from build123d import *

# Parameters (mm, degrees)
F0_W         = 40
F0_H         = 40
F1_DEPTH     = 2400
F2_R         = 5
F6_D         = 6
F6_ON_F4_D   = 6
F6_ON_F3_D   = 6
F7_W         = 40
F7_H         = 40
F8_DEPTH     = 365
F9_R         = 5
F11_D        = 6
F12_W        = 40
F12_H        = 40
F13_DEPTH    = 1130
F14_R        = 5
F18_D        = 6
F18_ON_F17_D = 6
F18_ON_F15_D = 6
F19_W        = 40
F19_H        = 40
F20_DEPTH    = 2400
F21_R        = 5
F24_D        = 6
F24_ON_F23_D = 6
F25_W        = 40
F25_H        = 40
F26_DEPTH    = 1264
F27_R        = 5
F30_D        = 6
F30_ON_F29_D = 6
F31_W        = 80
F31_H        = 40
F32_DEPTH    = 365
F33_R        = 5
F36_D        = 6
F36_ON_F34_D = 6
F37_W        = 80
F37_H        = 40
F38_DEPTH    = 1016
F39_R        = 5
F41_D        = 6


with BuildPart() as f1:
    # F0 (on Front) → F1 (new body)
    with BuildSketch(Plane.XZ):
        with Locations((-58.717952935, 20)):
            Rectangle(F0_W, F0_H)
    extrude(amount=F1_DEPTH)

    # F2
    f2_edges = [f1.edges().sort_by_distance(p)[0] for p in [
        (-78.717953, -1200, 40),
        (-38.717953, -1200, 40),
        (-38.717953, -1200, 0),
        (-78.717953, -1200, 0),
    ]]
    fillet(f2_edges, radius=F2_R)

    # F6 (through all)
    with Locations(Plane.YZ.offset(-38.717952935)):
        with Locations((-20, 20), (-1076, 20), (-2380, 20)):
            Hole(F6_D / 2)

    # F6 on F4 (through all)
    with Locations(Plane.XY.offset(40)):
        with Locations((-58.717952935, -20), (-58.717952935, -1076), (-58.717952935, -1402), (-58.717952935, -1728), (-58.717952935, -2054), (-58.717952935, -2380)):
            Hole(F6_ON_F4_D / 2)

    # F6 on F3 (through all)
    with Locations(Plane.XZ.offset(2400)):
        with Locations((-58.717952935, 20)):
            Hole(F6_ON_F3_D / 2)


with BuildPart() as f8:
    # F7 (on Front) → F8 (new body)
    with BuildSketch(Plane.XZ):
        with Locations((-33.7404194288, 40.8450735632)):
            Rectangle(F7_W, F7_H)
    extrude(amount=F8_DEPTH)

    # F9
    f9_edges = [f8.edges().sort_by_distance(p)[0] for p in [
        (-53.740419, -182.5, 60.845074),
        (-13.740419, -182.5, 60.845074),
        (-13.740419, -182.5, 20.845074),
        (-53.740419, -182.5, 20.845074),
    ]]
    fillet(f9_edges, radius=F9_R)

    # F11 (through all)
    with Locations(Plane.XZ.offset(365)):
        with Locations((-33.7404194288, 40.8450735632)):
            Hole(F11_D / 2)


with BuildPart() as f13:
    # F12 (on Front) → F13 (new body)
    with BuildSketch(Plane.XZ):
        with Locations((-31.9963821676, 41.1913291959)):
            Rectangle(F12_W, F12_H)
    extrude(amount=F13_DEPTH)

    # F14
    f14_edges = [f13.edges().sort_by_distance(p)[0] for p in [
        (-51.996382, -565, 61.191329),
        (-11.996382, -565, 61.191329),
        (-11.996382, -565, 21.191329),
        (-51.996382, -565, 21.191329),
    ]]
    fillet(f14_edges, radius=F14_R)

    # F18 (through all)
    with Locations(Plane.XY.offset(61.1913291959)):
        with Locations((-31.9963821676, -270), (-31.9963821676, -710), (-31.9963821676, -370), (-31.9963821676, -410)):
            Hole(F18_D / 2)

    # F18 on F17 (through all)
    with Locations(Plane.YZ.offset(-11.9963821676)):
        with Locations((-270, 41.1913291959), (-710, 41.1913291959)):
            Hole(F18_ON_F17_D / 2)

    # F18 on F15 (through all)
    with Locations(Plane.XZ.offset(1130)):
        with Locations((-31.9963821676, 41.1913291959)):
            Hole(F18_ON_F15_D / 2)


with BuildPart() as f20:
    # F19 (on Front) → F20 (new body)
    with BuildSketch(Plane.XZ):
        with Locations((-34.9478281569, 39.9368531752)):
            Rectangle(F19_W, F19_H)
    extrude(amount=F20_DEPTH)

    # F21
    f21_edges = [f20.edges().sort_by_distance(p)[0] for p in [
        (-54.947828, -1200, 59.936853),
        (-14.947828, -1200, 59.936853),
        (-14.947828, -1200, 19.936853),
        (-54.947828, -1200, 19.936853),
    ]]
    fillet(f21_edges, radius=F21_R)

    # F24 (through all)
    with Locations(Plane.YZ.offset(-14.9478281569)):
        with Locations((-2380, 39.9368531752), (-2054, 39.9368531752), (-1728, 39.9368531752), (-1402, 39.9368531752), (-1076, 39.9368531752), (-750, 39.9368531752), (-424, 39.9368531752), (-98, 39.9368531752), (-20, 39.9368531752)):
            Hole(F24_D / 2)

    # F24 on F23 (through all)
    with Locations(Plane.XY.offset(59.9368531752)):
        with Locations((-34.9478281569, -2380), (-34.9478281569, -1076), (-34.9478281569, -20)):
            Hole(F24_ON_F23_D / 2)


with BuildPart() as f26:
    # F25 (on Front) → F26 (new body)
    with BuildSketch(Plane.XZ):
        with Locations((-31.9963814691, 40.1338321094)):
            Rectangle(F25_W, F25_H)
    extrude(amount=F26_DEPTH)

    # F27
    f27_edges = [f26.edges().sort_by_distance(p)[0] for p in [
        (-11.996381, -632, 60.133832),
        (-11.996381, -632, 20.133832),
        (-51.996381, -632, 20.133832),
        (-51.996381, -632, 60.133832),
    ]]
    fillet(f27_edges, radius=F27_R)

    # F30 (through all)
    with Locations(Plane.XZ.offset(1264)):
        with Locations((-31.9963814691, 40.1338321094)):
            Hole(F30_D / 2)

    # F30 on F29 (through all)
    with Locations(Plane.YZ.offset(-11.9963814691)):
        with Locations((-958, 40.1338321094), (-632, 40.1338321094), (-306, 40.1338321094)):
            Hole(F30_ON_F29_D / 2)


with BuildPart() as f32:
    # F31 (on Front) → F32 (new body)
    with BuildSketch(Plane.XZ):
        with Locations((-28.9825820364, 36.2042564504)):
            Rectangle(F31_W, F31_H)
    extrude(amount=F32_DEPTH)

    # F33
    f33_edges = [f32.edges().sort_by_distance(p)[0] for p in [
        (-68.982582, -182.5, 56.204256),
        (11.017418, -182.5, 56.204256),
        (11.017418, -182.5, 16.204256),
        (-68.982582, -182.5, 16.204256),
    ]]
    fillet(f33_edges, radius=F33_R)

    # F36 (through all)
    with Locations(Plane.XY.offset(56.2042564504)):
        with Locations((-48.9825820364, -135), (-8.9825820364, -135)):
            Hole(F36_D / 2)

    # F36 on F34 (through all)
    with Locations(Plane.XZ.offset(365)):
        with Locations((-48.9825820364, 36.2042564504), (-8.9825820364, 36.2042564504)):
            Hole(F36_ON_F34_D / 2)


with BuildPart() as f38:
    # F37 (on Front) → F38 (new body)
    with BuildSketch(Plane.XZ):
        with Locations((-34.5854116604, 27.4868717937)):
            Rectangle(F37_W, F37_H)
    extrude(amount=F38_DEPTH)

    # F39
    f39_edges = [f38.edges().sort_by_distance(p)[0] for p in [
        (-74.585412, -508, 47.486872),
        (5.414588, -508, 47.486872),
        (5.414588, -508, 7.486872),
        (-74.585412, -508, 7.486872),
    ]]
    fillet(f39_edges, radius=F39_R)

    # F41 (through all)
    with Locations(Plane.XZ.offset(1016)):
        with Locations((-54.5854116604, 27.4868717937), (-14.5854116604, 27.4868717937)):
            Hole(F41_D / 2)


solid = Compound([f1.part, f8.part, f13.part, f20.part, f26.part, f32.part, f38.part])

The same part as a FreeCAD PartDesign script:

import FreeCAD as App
import Part
import Sketcher
from FreeCAD import Vector
Q = App.Units.Quantity


def edges_at(feature, points):
    """Names of the edges that pass closest to the given points."""
    edges = feature.Shape.Edges
    near = lambda p: min(range(len(edges)), key=lambda i: edges[i].distToShape(Part.Vertex(*p))[0])
    return sorted({f"Edge{near(p) + 1}" for p in points})

doc = App.newDocument("Part")
body = doc.addObject("PartDesign::Body", "Body")

# Sketch on XZ plane
sketch1 = doc.addObject("Sketcher::SketchObject", "Sketch")
body.addObject(sketch1)
sketch1.AttachmentSupport = (doc.XZ_Plane, [""])
sketch1.MapMode = "FlatFace"
sketch1.addGeometry([
    Part.LineSegment(Vector(-79, 40, 0), Vector(-79, 0, 0)),
    Part.LineSegment(Vector(-79, 0, 0), Vector(-39, 0, 0)),
    Part.LineSegment(Vector(-39, 0, 0), Vector(-39, 40, 0)),
    Part.LineSegment(Vector(-39, 40, 0), Vector(-79, 40, 0)),
], False)
sketch1.addConstraint([
    Sketcher.Constraint("Coincident", 0, 2, 1, 1),
    Sketcher.Constraint("Coincident", 1, 2, 2, 1),
    Sketcher.Constraint("Coincident", 2, 2, 3, 1),
    Sketcher.Constraint("Coincident", 3, 2, 0, 1),
    Sketcher.Constraint("Vertical", 0),
    Sketcher.Constraint("Horizontal", 1),
    Sketcher.Constraint("Vertical", 2),
    Sketcher.Constraint("Horizontal", 3),
    Sketcher.Constraint("PointOnObject", 0, 2, -1),
    Sketcher.Constraint("Equal", 3, 0),
    Sketcher.Constraint("DistanceX", 1, 1, 1, 2, Q("40 mm")),
    Sketcher.Constraint("DistanceX", 0, 2, -1, 1, Q("78.717953 mm")),
])
pad1 = doc.addObject("PartDesign::Pad", "Pad")
body.addObject(pad1)
pad1.Profile = sketch1
pad1.Length = 2400
doc.recompute()

fillet = doc.addObject("PartDesign::Fillet", "Fillet")
body.addObject(fillet)
fillet.Base = (pad1, edges_at(pad1, [
    (-78.718, -1200, 40),
    (-38.718, -1200, 40),
    (-38.718, -1200, 0),
    (-78.718, -1200, 0),
]))
fillet.Radius = 5

# Sketch on YZ plane
sketch2 = doc.addObject("Sketcher::SketchObject", "Sketch001")
body.addObject(sketch2)
sketch2.AttachmentSupport = (doc.YZ_Plane, [""])
sketch2.MapMode = "FlatFace"
sketch2.AttachmentOffset = App.Placement(Vector(0, 0, -38.717953), App.Rotation())
sketch2.addGeometry([
    Part.Circle(Vector(-20, 20, 0), Vector(0, 0, 1), 3),
    Part.Circle(Vector(-1076, 20, 0), Vector(0, 0, 1), 3),
    Part.Circle(Vector(-2380, 20, 0), Vector(0, 0, 1), 3),
], False)
sketch2.addConstraint([
    Sketcher.Constraint("Equal", 0, 1),
    Sketcher.Constraint("Equal", 1, 2),
    Sketcher.Constraint("Horizontal", 0, 3, 1, 3),
    Sketcher.Constraint("Horizontal", 1, 3, 2, 3),
    Sketcher.Constraint("Diameter", 0, Q("6 mm")),
    Sketcher.Constraint("DistanceX", 0, 3, -1, 1, Q("20 mm")),
    Sketcher.Constraint("DistanceY", -1, 1, 0, 3, Q("20 mm")),
    Sketcher.Constraint("DistanceX", 1, 3, -1, 1, Q("1076 mm")),
    Sketcher.Constraint("DistanceX", 2, 3, -1, 1, Q("2380 mm")),
])
doc.recompute()
hole = doc.addObject("PartDesign::Hole", "Hole")
body.addObject(hole)
hole.Profile = sketch2
hole.ThreadType = "None"
hole.Diameter = 6
hole.DepthType = "ThroughAll"

# Sketch on XY plane
sketch3 = doc.addObject("Sketcher::SketchObject", "Sketch002")
body.addObject(sketch3)
sketch3.AttachmentSupport = (doc.XY_Plane, [""])
sketch3.MapMode = "FlatFace"
sketch3.AttachmentOffset = App.Placement(Vector(0, 0, 40), App.Rotation())
sketch3.addGeometry([
    Part.Circle(Vector(-58.7, -20, 0), Vector(0, 0, 1), 3),  # 0
    Part.Circle(Vector(-58.7, -1076, 0), Vector(0, 0, 1), 3),  # 1
    Part.Circle(Vector(-58.7, -1402, 0), Vector(0, 0, 1), 3),  # 2
    Part.Circle(Vector(-58.7, -1728, 0), Vector(0, 0, 1), 3),  # 3
    Part.Circle(Vector(-58.7, -2054, 0), Vector(0, 0, 1), 3),  # 4
    Part.Circle(Vector(-58.7, -2380, 0), Vector(0, 0, 1), 3),  # 5
], False)
sketch3.addConstraint([
    Sketcher.Constraint("Equal", 0, 1),
    Sketcher.Constraint("Equal", 1, 2),
    Sketcher.Constraint("Equal", 2, 3),
    Sketcher.Constraint("Equal", 3, 4),
    Sketcher.Constraint("Equal", 4, 5),
    Sketcher.Constraint("Vertical", 0, 3, 1, 3),
    Sketcher.Constraint("Vertical", 1, 3, 2, 3),
    Sketcher.Constraint("Vertical", 2, 3, 3, 3),
    Sketcher.Constraint("Vertical", 3, 3, 4, 3),
    Sketcher.Constraint("Vertical", 4, 3, 5, 3),
    Sketcher.Constraint("Diameter", 0, Q("6 mm")),
    Sketcher.Constraint("DistanceY", 0, 3, -1, 1, Q("20 mm")),
    Sketcher.Constraint("DistanceY", 1, 3, -1, 1, Q("1076 mm")),
    Sketcher.Constraint("DistanceY", 2, 3, -1, 1, Q("1402 mm")),
    Sketcher.Constraint("DistanceY", 3, 3, -1, 1, Q("1728 mm")),
    Sketcher.Constraint("DistanceY", 4, 3, -1, 1, Q("2054 mm")),
    Sketcher.Constraint("DistanceY", 5, 3, -1, 1, Q("2380 mm")),
    Sketcher.Constraint("DistanceX", 0, 3, -1, 1, Q("58.717953 mm")),
])
doc.recompute()
hole2 = doc.addObject("PartDesign::Hole", "Hole001")
body.addObject(hole2)
hole2.Profile = sketch3
hole2.ThreadType = "None"
hole2.Diameter = 6
hole2.DepthType = "ThroughAll"

# Sketch on XZ plane
sketch4 = doc.addObject("Sketcher::SketchObject", "Sketch003")
body.addObject(sketch4)
sketch4.AttachmentSupport = (doc.XZ_Plane, [""])
sketch4.MapMode = "FlatFace"
sketch4.AttachmentOffset = App.Placement(Vector(0, 0, 2400), App.Rotation())
sketch4.addGeometry(Part.Circle(Vector(-58.7, 20, 0), Vector(0, 0, 1), 3), False)
sketch4.addConstraint([
    Sketcher.Constraint("Diameter", 0, Q("6 mm")),
    Sketcher.Constraint("DistanceY", -1, 1, 0, 3, Q("20 mm")),
    Sketcher.Constraint("DistanceX", 0, 3, -1, 1, Q("58.717953 mm")),
])
doc.recompute()
hole3 = doc.addObject("PartDesign::Hole", "Hole002")
body.addObject(hole3)
hole3.Profile = sketch4
hole3.ThreadType = "None"
hole3.Diameter = 6
hole3.DepthType = "ThroughAll"
body2 = doc.addObject("PartDesign::Body", "Body001")

# Sketch on XZ plane
sketch5 = doc.addObject("Sketcher::SketchObject", "Sketch004")
body2.addObject(sketch5)
sketch5.AttachmentSupport = (doc.getObject("XZ_Plane001"), [""])
sketch5.MapMode = "FlatFace"
sketch5.addGeometry([
    Part.LineSegment(Vector(-54, 61, 0), Vector(-54, 21, 0)),
    Part.LineSegment(Vector(-54, 21, 0), Vector(-14, 21, 0)),
    Part.LineSegment(Vector(-14, 21, 0), Vector(-14, 61, 0)),
    Part.LineSegment(Vector(-14, 61, 0), Vector(-54, 61, 0)),
], False)
sketch5.addConstraint([
    Sketcher.Constraint("Coincident", 0, 2, 1, 1),
    Sketcher.Constraint("Coincident", 1, 2, 2, 1),
    Sketcher.Constraint("Coincident", 2, 2, 3, 1),
    Sketcher.Constraint("Coincident", 3, 2, 0, 1),
    Sketcher.Constraint("Vertical", 0),
    Sketcher.Constraint("Horizontal", 1),
    Sketcher.Constraint("Vertical", 2),
    Sketcher.Constraint("Horizontal", 3),
    Sketcher.Constraint("Equal", 3, 0),
    Sketcher.Constraint("DistanceX", 1, 1, 1, 2, Q("40 mm")),
    Sketcher.Constraint("DistanceX", 0, 2, -1, 1, Q("53.740419 mm")),
    Sketcher.Constraint("DistanceY", -1, 1, 0, 2, Q("20.845074 mm")),
])
pad2 = doc.addObject("PartDesign::Pad", "Pad001")
body2.addObject(pad2)
pad2.Profile = sketch5
pad2.Length = 365
doc.recompute()

fillet2 = doc.addObject("PartDesign::Fillet", "Fillet001")
body2.addObject(fillet2)
fillet2.Base = (pad2, edges_at(pad2, [
    (-53.74, -182.5, 60.845),
    (-13.74, -182.5, 60.845),
    (-13.74, -182.5, 20.845),
    (-53.74, -182.5, 20.845),
]))
fillet2.Radius = 5

# Sketch on XZ plane
sketch6 = doc.addObject("Sketcher::SketchObject", "Sketch005")
body2.addObject(sketch6)
sketch6.AttachmentSupport = (doc.getObject("XZ_Plane001"), [""])
sketch6.MapMode = "FlatFace"
sketch6.AttachmentOffset = App.Placement(Vector(0, 0, 365), App.Rotation())
sketch6.addGeometry(Part.Circle(Vector(-33.7, 40.8, 0), Vector(0, 0, 1), 3), False)
sketch6.addConstraint([
    Sketcher.Constraint("Diameter", 0, Q("6 mm")),
    Sketcher.Constraint("DistanceX", 0, 3, -1, 1, Q("33.740419 mm")),
    Sketcher.Constraint("DistanceY", -1, 1, 0, 3, Q("40.845074 mm")),
])
doc.recompute()
hole4 = doc.addObject("PartDesign::Hole", "Hole003")
body2.addObject(hole4)
hole4.Profile = sketch6
hole4.ThreadType = "None"
hole4.Diameter = 6
hole4.DepthType = "ThroughAll"
body3 = doc.addObject("PartDesign::Body", "Body002")

# Sketch on XZ plane
sketch7 = doc.addObject("Sketcher::SketchObject", "Sketch006")
body3.addObject(sketch7)
sketch7.AttachmentSupport = (doc.getObject("XZ_Plane002"), [""])
sketch7.MapMode = "FlatFace"
sketch7.addGeometry([
    Part.LineSegment(Vector(-52, 61, 0), Vector(-52, 21, 0)),
    Part.LineSegment(Vector(-52, 21, 0), Vector(-12, 21, 0)),
    Part.LineSegment(Vector(-12, 21, 0), Vector(-12, 61, 0)),
    Part.LineSegment(Vector(-12, 61, 0), Vector(-52, 61, 0)),
], False)
sketch7.addConstraint([
    Sketcher.Constraint("Coincident", 0, 2, 1, 1),
    Sketcher.Constraint("Coincident", 1, 2, 2, 1),
    Sketcher.Constraint("Coincident", 2, 2, 3, 1),
    Sketcher.Constraint("Coincident", 3, 2, 0, 1),
    Sketcher.Constraint("Vertical", 0),
    Sketcher.Constraint("Horizontal", 1),
    Sketcher.Constraint("Vertical", 2),
    Sketcher.Constraint("Horizontal", 3),
    Sketcher.Constraint("Equal", 3, 0),
    Sketcher.Constraint("DistanceX", 1, 1, 1, 2, Q("40 mm")),
    Sketcher.Constraint("DistanceY", -1, 1, 0, 2, Q("21.191329 mm")),
    Sketcher.Constraint("DistanceX", 0, 2, -1, 1, Q("51.996382 mm")),
])
pad3 = doc.addObject("PartDesign::Pad", "Pad002")
body3.addObject(pad3)
pad3.Profile = sketch7
pad3.Length = 1130
doc.recompute()

fillet3 = doc.addObject("PartDesign::Fillet", "Fillet002")
body3.addObject(fillet3)
fillet3.Base = (pad3, edges_at(pad3, [
    (-51.996, -565, 61.191),
    (-11.996, -565, 61.191),
    (-11.996, -565, 21.191),
    (-51.996, -565, 21.191),
]))
fillet3.Radius = 5

# Sketch on XY plane
sketch8 = doc.addObject("Sketcher::SketchObject", "Sketch007")
body3.addObject(sketch8)
sketch8.AttachmentSupport = (doc.getObject("XY_Plane002"), [""])
sketch8.MapMode = "FlatFace"
sketch8.AttachmentOffset = App.Placement(Vector(0, 0, 61.191329), App.Rotation())
sketch8.addGeometry([
    Part.Circle(Vector(-32, -270, 0), Vector(0, 0, 1), 3),
    Part.Circle(Vector(-32, -710, 0), Vector(0, 0, 1), 3),
    Part.Circle(Vector(-32, -370, 0), Vector(0, 0, 1), 3),
    Part.Circle(Vector(-32, -410, 0), Vector(0, 0, 1), 3),
], False)
sketch8.addConstraint([
    Sketcher.Constraint("Equal", 0, 1),
    Sketcher.Constraint("Equal", 1, 2),
    Sketcher.Constraint("Equal", 2, 3),
    Sketcher.Constraint("Vertical", 0, 3, 1, 3),
    Sketcher.Constraint("Vertical", 1, 3, 2, 3),
    Sketcher.Constraint("Vertical", 2, 3, 3, 3),
    Sketcher.Constraint("Diameter", 0, Q("6 mm")),
    Sketcher.Constraint("DistanceY", 0, 3, -1, 1, Q("270 mm")),
    Sketcher.Constraint("DistanceY", 1, 3, -1, 1, Q("710 mm")),
    Sketcher.Constraint("DistanceY", 2, 3, -1, 1, Q("370 mm")),
    Sketcher.Constraint("DistanceY", 3, 3, -1, 1, Q("410 mm")),
    Sketcher.Constraint("DistanceX", 0, 3, -1, 1, Q("31.996382 mm")),
])
doc.recompute()
hole5 = doc.addObject("PartDesign::Hole", "Hole004")
body3.addObject(hole5)
hole5.Profile = sketch8
hole5.ThreadType = "None"
hole5.Diameter = 6
hole5.DepthType = "ThroughAll"

# Sketch on YZ plane
sketch9 = doc.addObject("Sketcher::SketchObject", "Sketch008")
body3.addObject(sketch9)
sketch9.AttachmentSupport = (doc.getObject("YZ_Plane002"), [""])
sketch9.MapMode = "FlatFace"
sketch9.AttachmentOffset = App.Placement(Vector(0, 0, -11.996382), App.Rotation())
sketch9.addGeometry([
    Part.Circle(Vector(-270, 41.2, 0), Vector(0, 0, 1), 3),
    Part.Circle(Vector(-710, 41.2, 0), Vector(0, 0, 1), 3),
], False)
sketch9.addConstraint([
    Sketcher.Constraint("Equal", 0, 1),
    Sketcher.Constraint("Horizontal", 0, 3, 1, 3),
    Sketcher.Constraint("Diameter", 0, Q("6 mm")),
    Sketcher.Constraint("DistanceX", 0, 3, -1, 1, Q("270 mm")),
    Sketcher.Constraint("DistanceX", 1, 3, -1, 1, Q("710 mm")),
    Sketcher.Constraint("DistanceY", -1, 1, 0, 3, Q("41.191329 mm")),
])
doc.recompute()
hole6 = doc.addObject("PartDesign::Hole", "Hole005")
body3.addObject(hole6)
hole6.Profile = sketch9
hole6.ThreadType = "None"
hole6.Diameter = 6
hole6.DepthType = "ThroughAll"

# Sketch on XZ plane
sketch10 = doc.addObject("Sketcher::SketchObject", "Sketch009")
body3.addObject(sketch10)
sketch10.AttachmentSupport = (doc.getObject("XZ_Plane002"), [""])
sketch10.MapMode = "FlatFace"
sketch10.AttachmentOffset = App.Placement(Vector(0, 0, 1130), App.Rotation())
sketch10.addGeometry(Part.Circle(Vector(-32, 41.2, 0), Vector(0, 0, 1), 3), False)
sketch10.addConstraint([
    Sketcher.Constraint("Diameter", 0, Q("6 mm")),
    Sketcher.Constraint("DistanceY", -1, 1, 0, 3, Q("41.191329 mm")),
    Sketcher.Constraint("DistanceX", 0, 3, -1, 1, Q("31.996382 mm")),
])
doc.recompute()
hole7 = doc.addObject("PartDesign::Hole", "Hole006")
body3.addObject(hole7)
hole7.Profile = sketch10
hole7.ThreadType = "None"
hole7.Diameter = 6
hole7.DepthType = "ThroughAll"
body4 = doc.addObject("PartDesign::Body", "Body003")

# Sketch on XZ plane
sketch11 = doc.addObject("Sketcher::SketchObject", "Sketch010")
body4.addObject(sketch11)
sketch11.AttachmentSupport = (doc.getObject("XZ_Plane003"), [""])
sketch11.MapMode = "FlatFace"
sketch11.addGeometry([
    Part.LineSegment(Vector(-55, 60, 0), Vector(-55, 20, 0)),
    Part.LineSegment(Vector(-55, 20, 0), Vector(-15, 20, 0)),
    Part.LineSegment(Vector(-15, 20, 0), Vector(-15, 60, 0)),
    Part.LineSegment(Vector(-15, 60, 0), Vector(-55, 60, 0)),
], False)
sketch11.addConstraint([
    Sketcher.Constraint("Coincident", 0, 2, 1, 1),
    Sketcher.Constraint("Coincident", 1, 2, 2, 1),
    Sketcher.Constraint("Coincident", 2, 2, 3, 1),
    Sketcher.Constraint("Coincident", 3, 2, 0, 1),
    Sketcher.Constraint("Vertical", 0),
    Sketcher.Constraint("Horizontal", 1),
    Sketcher.Constraint("Vertical", 2),
    Sketcher.Constraint("Horizontal", 3),
    Sketcher.Constraint("Equal", 3, 0),
    Sketcher.Constraint("DistanceX", 1, 1, 1, 2, Q("40 mm")),
    Sketcher.Constraint("DistanceX", 0, 2, -1, 1, Q("54.947828 mm")),
    Sketcher.Constraint("DistanceY", -1, 1, 0, 2, Q("19.936853 mm")),
])
pad4 = doc.addObject("PartDesign::Pad", "Pad003")
body4.addObject(pad4)
pad4.Profile = sketch11
pad4.Length = 2400
doc.recompute()

fillet4 = doc.addObject("PartDesign::Fillet", "Fillet003")
body4.addObject(fillet4)
fillet4.Base = (pad4, edges_at(pad4, [
    (-54.948, -1200, 59.937),
    (-14.948, -1200, 59.937),
    (-14.948, -1200, 19.937),
    (-54.948, -1200, 19.937),
]))
fillet4.Radius = 5

# Sketch on YZ plane
sketch12 = doc.addObject("Sketcher::SketchObject", "Sketch011")
body4.addObject(sketch12)
sketch12.AttachmentSupport = (doc.getObject("YZ_Plane003"), [""])
sketch12.MapMode = "FlatFace"
sketch12.AttachmentOffset = App.Placement(Vector(0, 0, -14.947828), App.Rotation())
sketch12.addGeometry([
    Part.Circle(Vector(-2380, 39.9, 0), Vector(0, 0, 1), 3),  # 0
    Part.Circle(Vector(-2054, 39.9, 0), Vector(0, 0, 1), 3),  # 1
    Part.Circle(Vector(-1728, 39.9, 0), Vector(0, 0, 1), 3),  # 2
    Part.Circle(Vector(-1402, 39.9, 0), Vector(0, 0, 1), 3),  # 3
    Part.Circle(Vector(-1076, 39.9, 0), Vector(0, 0, 1), 3),  # 4
    Part.Circle(Vector(-750, 39.9, 0), Vector(0, 0, 1), 3),  # 5
    Part.Circle(Vector(-424, 39.9, 0), Vector(0, 0, 1), 3),  # 6
    Part.Circle(Vector(-98, 39.9, 0), Vector(0, 0, 1), 3),  # 7
    Part.Circle(Vector(-20, 39.9, 0), Vector(0, 0, 1), 3),  # 8
], False)
sketch12.addConstraint([
    Sketcher.Constraint("Equal", 0, 1),
    Sketcher.Constraint("Equal", 1, 2),
    Sketcher.Constraint("Equal", 2, 3),
    Sketcher.Constraint("Equal", 3, 4),
    Sketcher.Constraint("Equal", 4, 5),
    Sketcher.Constraint("Equal", 5, 6),
    Sketcher.Constraint("Equal", 6, 7),
    Sketcher.Constraint("Equal", 7, 8),
    Sketcher.Constraint("Horizontal", 0, 3, 1, 3),
    Sketcher.Constraint("Horizontal", 1, 3, 2, 3),
    Sketcher.Constraint("Horizontal", 2, 3, 3, 3),
    Sketcher.Constraint("Horizontal", 3, 3, 4, 3),
    Sketcher.Constraint("Horizontal", 4, 3, 5, 3),
    Sketcher.Constraint("Horizontal", 5, 3, 6, 3),
    Sketcher.Constraint("Horizontal", 6, 3, 7, 3),
    Sketcher.Constraint("Horizontal", 7, 3, 8, 3),
    Sketcher.Constraint("Diameter", 0, Q("6 mm")),
    Sketcher.Constraint("DistanceX", 0, 3, -1, 1, Q("2380 mm")),
    Sketcher.Constraint("DistanceX", 1, 3, -1, 1, Q("2054 mm")),
    Sketcher.Constraint("DistanceX", 2, 3, -1, 1, Q("1728 mm")),
    Sketcher.Constraint("DistanceX", 3, 3, -1, 1, Q("1402 mm")),
    Sketcher.Constraint("DistanceX", 4, 3, -1, 1, Q("1076 mm")),
    Sketcher.Constraint("DistanceX", 5, 3, -1, 1, Q("750 mm")),
    Sketcher.Constraint("DistanceX", 6, 3, -1, 1, Q("424 mm")),
    Sketcher.Constraint("DistanceX", 7, 3, -1, 1, Q("98 mm")),
    Sketcher.Constraint("DistanceX", 8, 3, -1, 1, Q("20 mm")),
    Sketcher.Constraint("DistanceY", -1, 1, 0, 3, Q("39.936853 mm")),
])
doc.recompute()
hole8 = doc.addObject("PartDesign::Hole", "Hole007")
body4.addObject(hole8)
hole8.Profile = sketch12
hole8.ThreadType = "None"
hole8.Diameter = 6
hole8.DepthType = "ThroughAll"

# Sketch on XY plane
sketch13 = doc.addObject("Sketcher::SketchObject", "Sketch012")
body4.addObject(sketch13)
sketch13.AttachmentSupport = (doc.getObject("XY_Plane003"), [""])
sketch13.MapMode = "FlatFace"
sketch13.AttachmentOffset = App.Placement(Vector(0, 0, 59.936853), App.Rotation())
sketch13.addGeometry([
    Part.Circle(Vector(-34.9, -2380, 0), Vector(0, 0, 1), 3),
    Part.Circle(Vector(-34.9, -1076, 0), Vector(0, 0, 1), 3),
    Part.Circle(Vector(-34.9, -20, 0), Vector(0, 0, 1), 3),
], False)
sketch13.addConstraint([
    Sketcher.Constraint("Equal", 0, 1),
    Sketcher.Constraint("Equal", 1, 2),
    Sketcher.Constraint("Vertical", 0, 3, 1, 3),
    Sketcher.Constraint("Vertical", 1, 3, 2, 3),
    Sketcher.Constraint("Diameter", 0, Q("6 mm")),
    Sketcher.Constraint("DistanceY", 0, 3, -1, 1, Q("2380 mm")),
    Sketcher.Constraint("DistanceY", 1, 3, -1, 1, Q("1076 mm")),
    Sketcher.Constraint("DistanceY", 2, 3, -1, 1, Q("20 mm")),
    Sketcher.Constraint("DistanceX", 0, 3, -1, 1, Q("34.947828 mm")),
])
doc.recompute()
hole9 = doc.addObject("PartDesign::Hole", "Hole008")
body4.addObject(hole9)
hole9.Profile = sketch13
hole9.ThreadType = "None"
hole9.Diameter = 6
hole9.DepthType = "ThroughAll"
body5 = doc.addObject("PartDesign::Body", "Body004")

# Sketch on XZ plane
sketch14 = doc.addObject("Sketcher::SketchObject", "Sketch013")
body5.addObject(sketch14)
sketch14.AttachmentSupport = (doc.getObject("XZ_Plane004"), [""])
sketch14.MapMode = "FlatFace"
sketch14.addGeometry([
    Part.LineSegment(Vector(-52, 60, 0), Vector(-52, 20, 0)),
    Part.LineSegment(Vector(-52, 20, 0), Vector(-12, 20, 0)),
    Part.LineSegment(Vector(-12, 20, 0), Vector(-12, 60, 0)),
    Part.LineSegment(Vector(-12, 60, 0), Vector(-52, 60, 0)),
], False)
sketch14.addConstraint([
    Sketcher.Constraint("Coincident", 0, 2, 1, 1),
    Sketcher.Constraint("Coincident", 1, 2, 2, 1),
    Sketcher.Constraint("Coincident", 2, 2, 3, 1),
    Sketcher.Constraint("Coincident", 3, 2, 0, 1),
    Sketcher.Constraint("Vertical", 0),
    Sketcher.Constraint("Horizontal", 1),
    Sketcher.Constraint("Vertical", 2),
    Sketcher.Constraint("Horizontal", 3),
    Sketcher.Constraint("Equal", 3, 0),
    Sketcher.Constraint("DistanceX", 1, 1, 1, 2, Q("40 mm")),
    Sketcher.Constraint("DistanceX", 0, 2, -1, 1, Q("51.996381 mm")),
    Sketcher.Constraint("DistanceY", -1, 1, 0, 2, Q("20.133832 mm")),
])
pad5 = doc.addObject("PartDesign::Pad", "Pad004")
body5.addObject(pad5)
pad5.Profile = sketch14
pad5.Length = 1264
doc.recompute()

fillet5 = doc.addObject("PartDesign::Fillet", "Fillet004")
body5.addObject(fillet5)
fillet5.Base = (pad5, edges_at(pad5, [
    (-11.996, -632, 60.134),
    (-11.996, -632, 20.134),
    (-51.996, -632, 20.134),
    (-51.996, -632, 60.134),
]))
fillet5.Radius = 5

# Sketch on XZ plane
sketch15 = doc.addObject("Sketcher::SketchObject", "Sketch014")
body5.addObject(sketch15)
sketch15.AttachmentSupport = (doc.getObject("XZ_Plane004"), [""])
sketch15.MapMode = "FlatFace"
sketch15.AttachmentOffset = App.Placement(Vector(0, 0, 1264), App.Rotation())
sketch15.addGeometry(Part.Circle(Vector(-32, 40.1, 0), Vector(0, 0, 1), 3), False)
sketch15.addConstraint([
    Sketcher.Constraint("Diameter", 0, Q("6 mm")),
    Sketcher.Constraint("DistanceX", 0, 3, -1, 1, Q("31.996381 mm")),
    Sketcher.Constraint("DistanceY", -1, 1, 0, 3, Q("40.133832 mm")),
])
doc.recompute()
hole10 = doc.addObject("PartDesign::Hole", "Hole009")
body5.addObject(hole10)
hole10.Profile = sketch15
hole10.ThreadType = "None"
hole10.Diameter = 6
hole10.DepthType = "ThroughAll"

# Sketch on YZ plane
sketch16 = doc.addObject("Sketcher::SketchObject", "Sketch015")
body5.addObject(sketch16)
sketch16.AttachmentSupport = (doc.getObject("YZ_Plane004"), [""])
sketch16.MapMode = "FlatFace"
sketch16.AttachmentOffset = App.Placement(Vector(0, 0, -11.996381), App.Rotation())
sketch16.addGeometry([
    Part.Circle(Vector(-958, 40.1, 0), Vector(0, 0, 1), 3),
    Part.Circle(Vector(-632, 40.1, 0), Vector(0, 0, 1), 3),
    Part.Circle(Vector(-306, 40.1, 0), Vector(0, 0, 1), 3),
], False)
sketch16.addConstraint([
    Sketcher.Constraint("Equal", 0, 1),
    Sketcher.Constraint("Equal", 1, 2),
    Sketcher.Constraint("Horizontal", 0, 3, 1, 3),
    Sketcher.Constraint("Horizontal", 1, 3, 2, 3),
    Sketcher.Constraint("Diameter", 0, Q("6 mm")),
    Sketcher.Constraint("DistanceX", 0, 3, -1, 1, Q("958 mm")),
    Sketcher.Constraint("DistanceX", 1, 3, -1, 1, Q("632 mm")),
    Sketcher.Constraint("DistanceX", 2, 3, -1, 1, Q("306 mm")),
    Sketcher.Constraint("DistanceY", -1, 1, 0, 3, Q("40.133832 mm")),
])
doc.recompute()
hole11 = doc.addObject("PartDesign::Hole", "Hole010")
body5.addObject(hole11)
hole11.Profile = sketch16
hole11.ThreadType = "None"
hole11.Diameter = 6
hole11.DepthType = "ThroughAll"
body6 = doc.addObject("PartDesign::Body", "Body005")

# Sketch on XZ plane
sketch17 = doc.addObject("Sketcher::SketchObject", "Sketch016")
body6.addObject(sketch17)
sketch17.AttachmentSupport = (doc.getObject("XZ_Plane005"), [""])
sketch17.MapMode = "FlatFace"
sketch17.addGeometry([
    Part.LineSegment(Vector(-69, 56, 0), Vector(-69, 16, 0)),
    Part.LineSegment(Vector(-69, 16, 0), Vector(11, 16, 0)),
    Part.LineSegment(Vector(11, 16, 0), Vector(11, 56, 0)),
    Part.LineSegment(Vector(11, 56, 0), Vector(-69, 56, 0)),
], False)
sketch17.addConstraint([
    Sketcher.Constraint("Coincident", 0, 2, 1, 1),
    Sketcher.Constraint("Coincident", 1, 2, 2, 1),
    Sketcher.Constraint("Coincident", 2, 2, 3, 1),
    Sketcher.Constraint("Coincident", 3, 2, 0, 1),
    Sketcher.Constraint("Vertical", 0),
    Sketcher.Constraint("Horizontal", 1),
    Sketcher.Constraint("Vertical", 2),
    Sketcher.Constraint("Horizontal", 3),
    Sketcher.Constraint("DistanceX", 1, 1, 1, 2, Q("80 mm")),
    Sketcher.Constraint("DistanceY", 0, 2, 0, 1, Q("40 mm")),
    Sketcher.Constraint("DistanceX", 0, 2, -1, 1, Q("68.982582 mm")),
    Sketcher.Constraint("DistanceY", -1, 1, 0, 2, Q("16.204256 mm")),
])
pad6 = doc.addObject("PartDesign::Pad", "Pad005")
body6.addObject(pad6)
pad6.Profile = sketch17
pad6.Length = 365
doc.recompute()

fillet6 = doc.addObject("PartDesign::Fillet", "Fillet005")
body6.addObject(fillet6)
fillet6.Base = (pad6, edges_at(pad6, [
    (-68.983, -182.5, 56.204),
    (11.017, -182.5, 56.204),
    (11.017, -182.5, 16.204),
    (-68.983, -182.5, 16.204),
]))
fillet6.Radius = 5

# Sketch on XY plane
sketch18 = doc.addObject("Sketcher::SketchObject", "Sketch017")
body6.addObject(sketch18)
sketch18.AttachmentSupport = (doc.getObject("XY_Plane005"), [""])
sketch18.MapMode = "FlatFace"
sketch18.AttachmentOffset = App.Placement(Vector(0, 0, 56.204256), App.Rotation())
sketch18.addGeometry([
    Part.Circle(Vector(-49, -135, 0), Vector(0, 0, 1), 3),
    Part.Circle(Vector(-9, -135, 0), Vector(0, 0, 1), 3),
], False)
sketch18.addConstraint([
    Sketcher.Constraint("Equal", 0, 1),
    Sketcher.Constraint("Horizontal", 0, 3, 1, 3),
    Sketcher.Constraint("Diameter", 0, Q("6 mm")),
    Sketcher.Constraint("DistanceY", 0, 3, -1, 1, Q("135 mm")),
    Sketcher.Constraint("DistanceX", 0, 3, 1, 3, Q("40 mm")),
    Sketcher.Constraint("DistanceX", 0, 3, -1, 1, Q("48.982582 mm")),
])
doc.recompute()
hole12 = doc.addObject("PartDesign::Hole", "Hole011")
body6.addObject(hole12)
hole12.Profile = sketch18
hole12.ThreadType = "None"
hole12.Diameter = 6
hole12.DepthType = "ThroughAll"

# Sketch on XZ plane
sketch19 = doc.addObject("Sketcher::SketchObject", "Sketch018")
body6.addObject(sketch19)
sketch19.AttachmentSupport = (doc.getObject("XZ_Plane005"), [""])
sketch19.MapMode = "FlatFace"
sketch19.AttachmentOffset = App.Placement(Vector(0, 0, 365), App.Rotation())
sketch19.addGeometry([
    Part.Circle(Vector(-49, 36.2, 0), Vector(0, 0, 1), 3),
    Part.Circle(Vector(-9, 36.2, 0), Vector(0, 0, 1), 3),
], False)
sketch19.addConstraint([
    Sketcher.Constraint("Equal", 0, 1),
    Sketcher.Constraint("Horizontal", 0, 3, 1, 3),
    Sketcher.Constraint("Diameter", 0, Q("6 mm")),
    Sketcher.Constraint("DistanceX", 0, 3, 1, 3, Q("40 mm")),
    Sketcher.Constraint("DistanceX", 0, 3, -1, 1, Q("48.982582 mm")),
    Sketcher.Constraint("DistanceY", -1, 1, 0, 3, Q("36.204256 mm")),
])
doc.recompute()
hole13 = doc.addObject("PartDesign::Hole", "Hole012")
body6.addObject(hole13)
hole13.Profile = sketch19
hole13.ThreadType = "None"
hole13.Diameter = 6
hole13.DepthType = "ThroughAll"
body7 = doc.addObject("PartDesign::Body", "Body006")

# Sketch on XZ plane
sketch20 = doc.addObject("Sketcher::SketchObject", "Sketch019")
body7.addObject(sketch20)
sketch20.AttachmentSupport = (doc.getObject("XZ_Plane006"), [""])
sketch20.MapMode = "FlatFace"
sketch20.addGeometry([
    Part.LineSegment(Vector(-75, 47, 0), Vector(-75, 7, 0)),
    Part.LineSegment(Vector(-75, 7, 0), Vector(5, 7, 0)),
    Part.LineSegment(Vector(5, 7, 0), Vector(5, 47, 0)),
    Part.LineSegment(Vector(5, 47, 0), Vector(-75, 47, 0)),
], False)
sketch20.addConstraint([
    Sketcher.Constraint("Coincident", 0, 2, 1, 1),
    Sketcher.Constraint("Coincident", 1, 2, 2, 1),
    Sketcher.Constraint("Coincident", 2, 2, 3, 1),
    Sketcher.Constraint("Coincident", 3, 2, 0, 1),
    Sketcher.Constraint("Vertical", 0),
    Sketcher.Constraint("Horizontal", 1),
    Sketcher.Constraint("Vertical", 2),
    Sketcher.Constraint("Horizontal", 3),
    Sketcher.Constraint("DistanceX", 1, 1, 1, 2, Q("80 mm")),
    Sketcher.Constraint("DistanceY", 0, 2, 0, 1, Q("40 mm")),
    Sketcher.Constraint("DistanceX", 0, 2, -1, 1, Q("74.585412 mm")),
    Sketcher.Constraint("DistanceY", -1, 1, 0, 2, Q("7.486872 mm")),
])
pad7 = doc.addObject("PartDesign::Pad", "Pad006")
body7.addObject(pad7)
pad7.Profile = sketch20
pad7.Length = 1016
doc.recompute()

fillet7 = doc.addObject("PartDesign::Fillet", "Fillet006")
body7.addObject(fillet7)
fillet7.Base = (pad7, edges_at(pad7, [
    (-74.585, -508, 47.487),
    (5.415, -508, 47.487),
    (5.415, -508, 7.487),
    (-74.585, -508, 7.487),
]))
fillet7.Radius = 5

# Sketch on XZ plane
sketch21 = doc.addObject("Sketcher::SketchObject", "Sketch020")
body7.addObject(sketch21)
sketch21.AttachmentSupport = (doc.getObject("XZ_Plane006"), [""])
sketch21.MapMode = "FlatFace"
sketch21.AttachmentOffset = App.Placement(Vector(0, 0, 1016), App.Rotation())
sketch21.addGeometry([
    Part.Circle(Vector(-54.6, 27.5, 0), Vector(0, 0, 1), 3),
    Part.Circle(Vector(-14.6, 27.5, 0), Vector(0, 0, 1), 3),
], False)
sketch21.addConstraint([
    Sketcher.Constraint("Equal", 0, 1),
    Sketcher.Constraint("Horizontal", 0, 3, 1, 3),
    Sketcher.Constraint("Diameter", 0, Q("6 mm")),
    Sketcher.Constraint("DistanceX", 0, 3, 1, 3, Q("40 mm")),
    Sketcher.Constraint("DistanceX", 0, 3, -1, 1, Q("54.585412 mm")),
    Sketcher.Constraint("DistanceY", -1, 1, 0, 3, Q("27.486872 mm")),
])
doc.recompute()
hole14 = doc.addObject("PartDesign::Hole", "Hole013")
body7.addObject(hole14)
hole14.Profile = sketch21
hole14.ThreadType = "None"
hole14.Diameter = 6
hole14.DepthType = "ThroughAll"

doc.recompute()
